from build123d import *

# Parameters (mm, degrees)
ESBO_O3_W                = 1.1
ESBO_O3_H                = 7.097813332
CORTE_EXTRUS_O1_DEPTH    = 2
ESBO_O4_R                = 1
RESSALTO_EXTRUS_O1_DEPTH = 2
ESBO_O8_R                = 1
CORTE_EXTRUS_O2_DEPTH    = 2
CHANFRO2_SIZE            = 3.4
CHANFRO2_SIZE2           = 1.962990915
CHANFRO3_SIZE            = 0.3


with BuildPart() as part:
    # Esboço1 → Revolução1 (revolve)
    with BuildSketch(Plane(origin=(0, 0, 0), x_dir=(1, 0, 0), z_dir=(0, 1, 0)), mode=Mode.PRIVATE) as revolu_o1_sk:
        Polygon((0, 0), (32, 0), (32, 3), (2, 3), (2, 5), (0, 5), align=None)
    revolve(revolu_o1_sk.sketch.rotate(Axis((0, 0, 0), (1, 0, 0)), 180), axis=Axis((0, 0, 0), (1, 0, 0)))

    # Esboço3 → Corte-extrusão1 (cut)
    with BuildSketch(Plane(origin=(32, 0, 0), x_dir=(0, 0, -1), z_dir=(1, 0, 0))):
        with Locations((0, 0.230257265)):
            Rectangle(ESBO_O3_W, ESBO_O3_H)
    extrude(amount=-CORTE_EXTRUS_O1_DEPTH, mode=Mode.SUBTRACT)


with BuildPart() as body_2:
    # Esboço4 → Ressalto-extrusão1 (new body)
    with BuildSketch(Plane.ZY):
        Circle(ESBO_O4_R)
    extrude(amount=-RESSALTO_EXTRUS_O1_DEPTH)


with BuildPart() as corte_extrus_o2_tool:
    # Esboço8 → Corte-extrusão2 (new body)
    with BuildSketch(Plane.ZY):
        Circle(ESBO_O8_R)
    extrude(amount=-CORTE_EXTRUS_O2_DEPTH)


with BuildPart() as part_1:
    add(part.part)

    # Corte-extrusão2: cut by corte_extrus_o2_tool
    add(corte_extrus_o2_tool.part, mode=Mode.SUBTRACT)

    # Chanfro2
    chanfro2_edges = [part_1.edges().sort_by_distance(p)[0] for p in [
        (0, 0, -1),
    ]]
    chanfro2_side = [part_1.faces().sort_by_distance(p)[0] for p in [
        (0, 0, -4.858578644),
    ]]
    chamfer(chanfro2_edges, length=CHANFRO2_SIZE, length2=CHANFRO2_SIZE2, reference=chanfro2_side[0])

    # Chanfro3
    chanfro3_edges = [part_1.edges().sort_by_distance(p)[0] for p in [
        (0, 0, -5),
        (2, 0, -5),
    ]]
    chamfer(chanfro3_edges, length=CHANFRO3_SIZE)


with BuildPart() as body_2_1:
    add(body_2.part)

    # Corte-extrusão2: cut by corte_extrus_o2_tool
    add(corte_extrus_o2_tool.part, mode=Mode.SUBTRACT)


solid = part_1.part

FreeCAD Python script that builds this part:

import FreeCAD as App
import Part
import Sketcher
Q = App.Units.Quantity


def edges_at(feature, points):
    """Names of the edges that pass closest to the given points."""
    edges = feature.Shape.Edges
    near = lambda p: min(range(len(edges)), key=lambda i: edges[i].distToShape(Part.Vertex(*p))[0])
    return sorted({f"Edge{near(p) + 1}" for p in points})

doc = App.newDocument("Part")
params = doc.addObject("Spreadsheet::Sheet", "Params")
for row, (alias, value) in enumerate([
    ("sketch1_width", "32 mm"),
    ("sketch1_width2", "30 mm"),
    ("sketch1_height", "3 mm"),
    ("revolution_angle", "360 deg"),
    ("sketch2_height", "1.1 mm"),
    ("pocket1_length", "2 mm"),
    ("sketch3_diameter", "2 mm"),
    ("pad1_length", "2 mm"),
    ("sketch4_diameter", "2 mm"),
    ("pad2_length", "2 mm"),
    ("chamfer_size", "3.4 mm"),
    ("chamfer_size2", "1.962991 mm"),
    ("chamfer2_size", "0.3 mm"),
], start=1):
    params.set(f"A{row}", alias)
    params.set(f"B{row}", "=" + value)
    params.setAlias(f"B{row}", alias)

body = doc.addObject("PartDesign::Body", "Body")

# Sketch on XZ plane
sketch1 = body.newObject("Sketcher::SketchObject", "Sketch")
sketch1.AttachmentSupport = (doc.getObject("XZ_Plane"), [""])
sketch1.MapMode = "FlatFace"
sketch1.addGeometry([
    Part.LineSegment(App.Vector(0, 0, 0), App.Vector(32, 0, 0)),  # 0
    Part.LineSegment(App.Vector(32, 0, 0), App.Vector(32, -3, 0)),  # 1
    Part.LineSegment(App.Vector(32, -3, 0), App.Vector(2, -3, 0)),  # 2
    Part.LineSegment(App.Vector(2, -3, 0), App.Vector(2, -5, 0)),  # 3
    Part.LineSegment(App.Vector(2, -5, 0), App.Vector(0, -5, 0)),  # 4
    Part.LineSegment(App.Vector(0, -5, 0), App.Vector(0, 0, 0)),  # 5
], False)
sketch1.addConstraint([
    Sketcher.Constraint("Coincident", 0, 2, 1, 1),
    Sketcher.Constraint("Coincident", 1, 2, 2, 1),
    Sketcher.Constraint("Coincident", 2, 2, 3, 1),
    Sketcher.Constraint("Coincident", 3, 2, 4, 1),
    Sketcher.Constraint("Coincident", 4, 2, 5, 1),
    Sketcher.Constraint("Coincident", 5, 2, 0, 1),
    Sketcher.Constraint("Horizontal", 0),
    Sketcher.Constraint("Vertical", 1),
    Sketcher.Constraint("Horizontal", 2),
    Sketcher.Constraint("Vertical", 3),
    Sketcher.Constraint("Horizontal", 4),
    Sketcher.Constraint("Vertical", 5),
    Sketcher.Constraint("Coincident", 5, 2, -1, 1),
    Sketcher.Constraint("Equal", 4, 3),
    Sketcher.Constraint("DistanceX", 0, 1, 0, 2, Q("32 mm")),
    Sketcher.Constraint("DistanceX", 2, 2, 2, 1, Q("30 mm")),
    Sketcher.Constraint("DistanceY", 1, 2, 1, 1, Q("3 mm")),
])
sketch1.setExpression("Constraints[14]", "Params.sketch1_width")
sketch1.setExpression("Constraints[15]", "Params.sketch1_width2")
sketch1.setExpression("Constraints[16]", "Params.sketch1_height")
revolution = body.newObject("PartDesign::Revolution", "Revolution")
revolution.Profile = sketch1
revolution.ReferenceAxis = (sketch1, ["H_Axis"])
revolution.setExpression("Angle", "Params.revolution_angle")

# Sketch on YZ plane
sketch2 = body.newObject("Sketcher::SketchObject", "Sketch001")
sketch2.AttachmentSupport = (doc.getObject("YZ_Plane"), [""])
sketch2.MapMode = "FlatFace"
sketch2.AttachmentOffset = App.Placement(App.Vector(0, 0, 32), App.Rotation())
sketch2.addGeometry([
    Part.LineSegment(App.Vector(3.8, 0.6, 0), App.Vector(-3.3, 0.6, 0)),
    Part.LineSegment(App.Vector(-3.3, 0.6, 0), App.Vector(-3.3, -0.6, 0)),
    Part.LineSegment(App.Vector(-3.3, -0.6, 0), App.Vector(3.8, -0.6, 0)),
    Part.LineSegment(App.Vector(3.8, -0.6, 0), App.Vector(3.8, 0.6, 0)),
], False)
sketch2.addConstraint([
    Sketcher.Constraint("Coincident", 0, 2, 1, 1),
    Sketcher.Constraint("Coincident", 1, 2, 2, 1),
    Sketcher.Constraint("Coincident", 2, 2, 3, 1),
    Sketcher.Constraint("Coincident", 3, 2, 0, 1),
    Sketcher.Constraint("Horizontal", 0),
    Sketcher.Constraint("Vertical", 1),
    Sketcher.Constraint("Horizontal", 2),
    Sketcher.Constraint("Vertical", 3),
    Sketcher.Constraint("DistanceY", 1, 2, 1, 1, Q("1.1 mm")),
    Sketcher.Constraint("DistanceY", -1, 1, 0, 2, Q("0.55 mm")),
    Sketcher.Constraint("DistanceX", 0, 2, 0, 1, Q("7.097813 mm")),
    Sketcher.Constraint("DistanceX", 0, 2, -1, 1, Q("3.318649 mm")),
])
sketch2.setExpression("Constraints[8]", "Params.sketch2_height")
pocket1 = body.newObject("PartDesign::Pocket", "Pocket")
pocket1.Profile = sketch2
pocket1.setExpression("Length", "Params.pocket1_length")
body2 = doc.addObject("PartDesign::Body", "Body001")

# Sketch on YZ plane
sketch3 = body2.newObject("Sketcher::SketchObject", "Sketch002")
sketch3.AttachmentSupport = (doc.getObject("YZ_Plane001"), [""])
sketch3.MapMode = "FlatFace"
sketch3.addGeometry(Part.Circle(App.Vector(0, 0, 0), App.Vector(0, 0, 1), 1), False)
sketch3.addConstraint([
    Sketcher.Constraint("Coincident", 0, 3, -1, 1),
    Sketcher.Constraint("Diameter", 0, Q("2 mm")),
])
sketch3.setExpression("Constraints[1]", "Params.sketch3_diameter")
pad1 = body2.newObject("PartDesign::Pad", "Pad")
pad1.Profile = sketch3
pad1.setExpression("Length", "Params.pad1_length")
body3 = doc.addObject("PartDesign::Body", "Body002")

# Sketch on YZ plane
sketch4 = body3.newObject("Sketcher::SketchObject", "Sketch003")
sketch4.AttachmentSupport = (doc.getObject("YZ_Plane002"), [""])
sketch4.MapMode = "FlatFace"
sketch4.addGeometry(Part.Circle(App.Vector(0, 0, 0), App.Vector(0, 0, 1), 1), False)
sketch4.addConstraint([
    Sketcher.Constraint("Coincident", 0, 3, -1, 1),
    Sketcher.Constraint("Diameter", 0, Q("2 mm")),
])
sketch4.setExpression("Constraints[1]", "Params.sketch4_diameter")
pad2 = body3.newObject("PartDesign::Pad", "Pad001")
pad2.Profile = sketch4
pad2.setExpression("Length", "Params.pad2_length")
doc.recompute()

body4 = doc.addObject("PartDesign::Body", "Body003")
body4.BaseFeature = body3
boolean = body.newObject("PartDesign::Boolean", "Boolean")
boolean.Type = "Cut"
boolean.addObjects([body4])
doc.recompute()

chamfer = body.newObject("PartDesign::Chamfer", "Chamfer")
chamfer.Base = (boolean, edges_at(boolean, [(0, 0, -1)]))
chamfer.ChamferType = "Two distances"
chamfer.setExpression("Size", "Params.chamfer_size")
chamfer.setExpression("Size2", "Params.chamfer_size2")
doc.recompute()

chamfer2 = body.newObject("PartDesign::Chamfer", "Chamfer001")
chamfer2.Base = (chamfer, edges_at(chamfer, [(0, 0, -5), (2, 0, -5)]))
chamfer2.setExpression("Size", "Params.chamfer2_size")
doc.recompute()

boolean2 = body2.newObject("PartDesign::Boolean", "Boolean001")
boolean2.Type = "Cut"
boolean2.addObjects([body3])

doc.recompute()
